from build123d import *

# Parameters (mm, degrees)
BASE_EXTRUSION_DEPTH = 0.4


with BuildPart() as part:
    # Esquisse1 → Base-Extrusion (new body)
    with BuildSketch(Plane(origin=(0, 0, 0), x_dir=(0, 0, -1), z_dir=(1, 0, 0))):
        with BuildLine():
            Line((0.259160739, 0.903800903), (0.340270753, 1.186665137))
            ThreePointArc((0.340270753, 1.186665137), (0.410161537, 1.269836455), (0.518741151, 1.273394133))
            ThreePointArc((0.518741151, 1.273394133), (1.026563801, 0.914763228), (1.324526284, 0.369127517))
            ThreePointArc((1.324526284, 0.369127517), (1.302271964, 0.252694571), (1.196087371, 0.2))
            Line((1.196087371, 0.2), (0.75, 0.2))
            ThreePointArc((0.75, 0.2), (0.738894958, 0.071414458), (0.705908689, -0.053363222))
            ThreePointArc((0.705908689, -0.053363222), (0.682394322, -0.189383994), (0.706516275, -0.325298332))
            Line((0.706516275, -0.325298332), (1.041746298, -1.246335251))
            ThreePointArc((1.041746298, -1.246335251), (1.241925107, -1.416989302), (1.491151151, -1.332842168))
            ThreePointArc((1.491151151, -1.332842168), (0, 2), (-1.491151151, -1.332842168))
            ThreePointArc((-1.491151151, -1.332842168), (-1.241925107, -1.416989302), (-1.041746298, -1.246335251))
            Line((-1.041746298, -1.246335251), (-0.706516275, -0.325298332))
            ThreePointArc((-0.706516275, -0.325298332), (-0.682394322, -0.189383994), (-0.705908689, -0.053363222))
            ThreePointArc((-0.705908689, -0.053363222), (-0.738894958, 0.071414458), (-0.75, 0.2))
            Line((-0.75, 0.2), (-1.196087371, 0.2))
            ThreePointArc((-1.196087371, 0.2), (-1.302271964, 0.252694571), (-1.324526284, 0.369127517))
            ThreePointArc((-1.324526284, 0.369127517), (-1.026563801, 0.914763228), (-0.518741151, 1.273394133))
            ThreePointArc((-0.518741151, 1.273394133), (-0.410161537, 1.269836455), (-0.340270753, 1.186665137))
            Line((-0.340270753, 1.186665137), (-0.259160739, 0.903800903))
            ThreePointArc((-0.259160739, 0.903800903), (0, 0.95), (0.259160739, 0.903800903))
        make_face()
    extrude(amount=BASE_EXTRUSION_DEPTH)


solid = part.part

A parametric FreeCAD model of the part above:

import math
import FreeCAD as App
import Part
import Sketcher
Q = App.Units.Quantity

doc = App.newDocument("Part")
body = doc.addObject("PartDesign::Body", "Body")

# Sketch on YZ plane
sketch1 = body.newObject("Sketcher::SketchObject", "Sketch")
sketch1.AttachmentSupport = (doc.getObject("YZ_Plane"), [""])
sketch1.MapMode = "FlatFace"
sketch1.addGeometry(Part.LineSegment(App.Vector(0.9, -0.26, 0), App.Vector(1.19, -0.34, 0)), False)
sketch1.addGeometry(Part.ArcOfCircle(Part.Circle(App.Vector(1.15, -0.47, 0), App.Vector(0, 0, 1), 0.13), math.radians(-22), math.radians(74)), False)
sketch1.addGeometry(Part.ArcOfCircle(Part.Circle(App.Vector(0, 0, 0), App.Vector(0, 0, 1), 1.37), math.radians(-74), math.radians(-22)), False)
sketch1.addGeometry(Part.ArcOfCircle(Part.Circle(App.Vector(0.33, -1.2, 0), App.Vector(0, 0, 1), 0.13), math.radians(180), math.radians(286)), False)
sketch1.addGeometry(Part.LineSegment(App.Vector(0.2, -1.2, 0), App.Vector(0.2, -0.75, 0)), False)
sketch1.addGeometry(Part.ArcOfCircle(Part.Circle(App.Vector(0.2, 0, 0), App.Vector(0, 0, 1), 0.75), math.radians(-109.74), math.radians(-90)), False)
sketch1.addGeometry(Part.ArcOfCircle(Part.Circle(App.Vector(-0.19, -1.08, 0), App.Vector(0, 0, 1), 0.4), math.radians(70), math.radians(110)), False)
sketch1.addGeometry(Part.LineSegment(App.Vector(-0.33, -0.71, 0), App.Vector(-1.25, -1.04, 0)), False)
sketch1.addGeometry(Part.ArcOfCircle(Part.Circle(App.Vector(-1.16, -1.29, 0), App.Vector(0, 0, 1), 0.27), math.radians(110), math.radians(228)), False)
sketch1.addGeometry(Part.ArcOfCircle(Part.Circle(App.Vector(0, 0, 0), App.Vector(0, 0, 1), 2), math.radians(-132), math.radians(132)), False)
sketch1.addGeometry(Part.ArcOfCircle(Part.Circle(App.Vector(-1.16, 1.29, 0), App.Vector(0, 0, 1), 0.27), math.radians(132), math.radians(250)), False)
sketch1.addGeometry(Part.LineSegment(App.Vector(-1.25, 1.04, 0), App.Vector(-0.33, 0.71, 0)), False)
sketch1.addGeometry(Part.ArcOfCircle(Part.Circle(App.Vector(-0.19, 1.08, 0), App.Vector(0, 0, 1), 0.4), math.radians(-110), math.radians(-70)), False)
sketch1.addGeometry(Part.ArcOfCircle(Part.Circle(App.Vector(0.2, 0, 0), App.Vector(0, 0, 1), 0.75), math.radians(90), math.radians(109.74)), False)
sketch1.addGeometry(Part.LineSegment(App.Vector(0.2, 0.75, 0), App.Vector(0.2, 1.2, 0)), False)
sketch1.addGeometry(Part.ArcOfCircle(Part.Circle(App.Vector(0.33, 1.2, 0), App.Vector(0, 0, 1), 0.13), math.radians(74), math.radians(180)), False)
sketch1.addGeometry(Part.ArcOfCircle(Part.Circle(App.Vector(0, 0, 0), App.Vector(0, 0, 1), 1.37), math.radians(22), math.radians(74)), False)
sketch1.addGeometry(Part.ArcOfCircle(Part.Circle(App.Vector(1.15, 0.47, 0), App.Vector(0, 0, 1), 0.13), math.radians(-74), math.radians(22)), False)
sketch1.addGeometry(Part.LineSegment(App.Vector(1.19, 0.34, 0), App.Vector(0.9, 0.26, 0)), False)
sketch1.addGeometry(Part.ArcOfCircle(Part.Circle(App.Vector(0.2, 0, 0), App.Vector(0, 0, 1), 0.75), math.radians(-20), math.radians(20)), False)
sketch1.addConstraint(Sketcher.Constraint("Tangent", 0, 2, 1, 2))
sketch1.addConstraint(Sketcher.Constraint("Tangent", 1, 1, 2, 2))
sketch1.addConstraint(Sketcher.Constraint("Tangent", 2, 1, 3, 2))
sketch1.addConstraint(Sketcher.Constraint("Tangent", 3, 1, 4, 1))
sketch1.addConstraint(Sketcher.Constraint("Coincident", 4, 2, 5, 2))
sketch1.addConstraint(Sketcher.Constraint("Tangent", 5, 1, 6, 1))
sketch1.addConstraint(Sketcher.Constraint("Tangent", 6, 2, 7, 1))
sketch1.addConstraint(Sketcher.Constraint("Tangent", 7, 2, 8, 1))
sketch1.addConstraint(Sketcher.Constraint("Tangent", 8, 2, 9, 1))
sketch1.addConstraint(Sketcher.Constraint("Tangent", 9, 2, 10, 1))
sketch1.addConstraint(Sketcher.Constraint("Tangent", 10, 2, 11, 1))
sketch1.addConstraint(Sketcher.Constraint("Tangent", 11, 2, 12, 1))
sketch1.addConstraint(Sketcher.Constraint("Tangent", 12, 2, 13, 2))
sketch1.addConstraint(Sketcher.Constraint("Coincident", 13, 1, 14, 1))
sketch1.addConstraint(Sketcher.Constraint("Tangent", 14, 2, 15, 2))
sketch1.addConstraint(Sketcher.Constraint("Tangent", 15, 1, 16, 2))
sketch1.addConstraint(Sketcher.Constraint("Tangent", 16, 1, 17, 2))
sketch1.addConstraint(Sketcher.Constraint("Tangent", 17, 1, 18, 1))
sketch1.addConstraint(Sketcher.Constraint("Coincident", 18, 2, 19, 2))
sketch1.addConstraint(Sketcher.Constraint("Coincident", 19, 1, 0, 1))
sketch1.addConstraint(Sketcher.Constraint("Vertical", 4))
sketch1.addConstraint(Sketcher.Constraint("Vertical", 14))
sketch1.addConstraint(Sketcher.Constraint("Coincident", 2, 3, -1, 1))
sketch1.addConstraint(Sketcher.Constraint("Coincident", 9, 3, -1, 1))
sketch1.addConstraint(Sketcher.Constraint("Coincident", 16, 3, -1, 1))
sketch1.addConstraint(Sketcher.Constraint("Coincident", 13, 3, 5, 3))
sketch1.addConstraint(Sketcher.Constraint("Coincident", 19, 3, 5, 3))
sketch1.addConstraint(Sketcher.Constraint("Equal", 1, 3))
sketch1.addConstraint(Sketcher.Constraint("Equal", 8, 10))
sketch1.addConstraint(Sketcher.Constraint("Equal", 6, 12))
sketch1.addConstraint(Sketcher.Constraint("Equal", 5, 13))
sketch1.addConstraint(Sketcher.Constraint("Equal", 3, 15))
sketch1.addConstraint(Sketcher.Constraint("Equal", 2, 16))
sketch1.addConstraint(Sketcher.Constraint("Equal", 15, 17))
sketch1.addConstraint(Sketcher.Constraint("Equal", 13, 19))
sketch1.addConstraint(Sketcher.Constraint("Symmetric", 6, 3, 12, 3, -1))
sketch1.addConstraint(Sketcher.Constraint("Symmetric", 0, 2, 17, 1, -1))
sketch1.addConstraint(Sketcher.Constraint("Vertical", 8, 3, 10, 3))
sketch1.addConstraint(Sketcher.Constraint("Vertical", 3, 3, 15, 3))
sketch1.addConstraint(Sketcher.Constraint("Vertical", 19, 3, 3, 1))
sketch1.addConstraint(Sketcher.Constraint("Radius", 9, Q("2 mm")))
sketch1.addConstraint(Sketcher.Constraint("Radius", 6, Q("0.4 mm")))
sketch1.addConstraint(Sketcher.Constraint("Angle", 0, Q("-16 deg")))
sketch1.addConstraint(Sketcher.Constraint("Angle", 7, Q("-160 deg")))
sketch1.addConstraint(Sketcher.Constraint("Radius", 5, Q("0.75 mm")))
sketch1.addConstraint(Sketcher.Constraint("Radius", 2, Q("1.375 mm")))
sketch1.addConstraint(Sketcher.Constraint("DistanceX", -1, 1, 5, 3, Q("0.2 mm")))
sketch1.addConstraint(Sketcher.Constraint("Radius", 1, Q("0.133333 mm")))
sketch1.addConstraint(Sketcher.Constraint("Radius", 8, Q("0.266667 mm")))
sketch1.addConstraint(Sketcher.Constraint("DistanceX", 6, 2, -1, 1, Q("0.325298 mm")))
sketch1.addConstraint(Sketcher.Constraint("DistanceX", -1, 1, 18, 2, Q("0.903801 mm")))
pad1 = body.newObject("PartDesign::Pad", "Pad")
pad1.Profile = sketch1
pad1.Length = 0.4

doc.recompute()
